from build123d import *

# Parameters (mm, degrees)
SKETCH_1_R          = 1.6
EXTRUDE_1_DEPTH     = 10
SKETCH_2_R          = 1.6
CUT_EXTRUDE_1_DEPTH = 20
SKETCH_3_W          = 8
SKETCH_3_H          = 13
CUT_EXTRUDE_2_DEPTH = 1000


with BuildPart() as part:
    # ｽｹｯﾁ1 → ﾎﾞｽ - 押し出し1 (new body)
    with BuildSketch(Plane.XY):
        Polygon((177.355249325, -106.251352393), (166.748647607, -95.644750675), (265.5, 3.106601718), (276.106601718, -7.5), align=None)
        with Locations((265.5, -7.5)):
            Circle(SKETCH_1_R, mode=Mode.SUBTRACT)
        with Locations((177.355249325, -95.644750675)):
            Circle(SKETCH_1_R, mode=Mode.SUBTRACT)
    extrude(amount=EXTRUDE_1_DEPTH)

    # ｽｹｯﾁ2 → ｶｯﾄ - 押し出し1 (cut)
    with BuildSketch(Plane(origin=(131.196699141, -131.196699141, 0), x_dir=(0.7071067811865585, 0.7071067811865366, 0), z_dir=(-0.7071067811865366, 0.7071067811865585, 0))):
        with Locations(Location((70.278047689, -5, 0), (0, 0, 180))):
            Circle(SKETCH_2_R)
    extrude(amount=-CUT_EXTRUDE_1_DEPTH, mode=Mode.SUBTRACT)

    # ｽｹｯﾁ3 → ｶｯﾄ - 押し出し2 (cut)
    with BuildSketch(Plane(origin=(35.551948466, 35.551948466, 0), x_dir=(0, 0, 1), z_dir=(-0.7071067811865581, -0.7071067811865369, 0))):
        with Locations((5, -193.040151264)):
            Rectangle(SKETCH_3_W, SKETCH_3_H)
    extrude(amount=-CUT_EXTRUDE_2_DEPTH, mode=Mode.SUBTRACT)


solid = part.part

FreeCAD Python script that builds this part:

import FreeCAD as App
import Part
import Sketcher
from FreeCAD import Vector
Q = App.Units.Quantity


def add_polygon(sketch, points):
    """Adds a closed chain of lines whose ends are joined by coincident constraints."""
    first, n = sketch.GeometryCount, len(points)
    for a, b in zip(points, points[1:] + points[:1]):
        sketch.addGeometry(Part.LineSegment(App.Vector(*a, 0), App.Vector(*b, 0)), False)
    for i in range(n):
        sketch.addConstraint(Sketcher.Constraint("Coincident", first + i, 2, first + (i + 1) % n, 1))

doc = App.newDocument("Part")
params = doc.addObject("Spreadsheet::Sheet", "Params")
for row, (alias, value) in enumerate([
    ("sketch1_diameter", "3.2 mm"),
    ("sketch1_length", "15 mm"),
    ("pad1_length", "10 mm"),
    ("sketch2_diameter", "3.2 mm"),
    ("pocket1_length", "20 mm"),
    ("sketch3_width", "8 mm"),
    ("sketch3_height", "13 mm"),
    ("pocket2_length", "1000 mm"),
], start=1):
    params.set(f"A{row}", alias)
    params.set(f"B{row}", "=" + value)
    params.setAlias(f"B{row}", alias)

body = doc.addObject("PartDesign::Body", "Body")

sketch1 = body.newObject("Sketcher::SketchObject", "Sketch")
sketch1.AttachmentSupport = (doc.getObject("XY_Plane"), [""])
sketch1.MapMode = "FlatFace"
add_polygon(sketch1, [(166.7, -95.6), (177.4, -106.3), (276.1, -7.5), (265.5, 3.1)])
sketch1.addGeometry(Part.Circle(Vector(177.4, -95.6, 0), Vector(0, 0, 1), 1.6), False)
sketch1.addGeometry(Part.Circle(Vector(265.5, -7.5, 0), Vector(0, 0, 1), 1.6), False)
sketch1.addConstraint([
    Sketcher.Constraint("Equal", 4, 5),
    Sketcher.Constraint("Perpendicular", 0, 1),
    Sketcher.Constraint("Perpendicular", 1, 2),
    Sketcher.Constraint("Perpendicular", 2, 3),
    Sketcher.Constraint("Horizontal", 5, 3, 1, 2),
    Sketcher.Constraint("Horizontal", 4, 3, 3, 2),
    Sketcher.Constraint("Vertical", 4, 3, 0, 2),
    Sketcher.Constraint("Vertical", 5, 3, 2, 2),
    Sketcher.Constraint("Diameter", 4, 3.2),
    Sketcher.Constraint("Angle", 0, Q("-45 deg")),
    Sketcher.Constraint("Distance", 0, 15.0),
    Sketcher.Constraint("DistanceX", -1, 1, 5, 3, 265.5),
    Sketcher.Constraint("DistanceY", 5, 3, -1, 1, 7.5),
    Sketcher.Constraint("Distance", 1, 139.655502),
])
sketch1.setExpression("Constraints[12]", "Params.sketch1_diameter")
sketch1.setExpression("Constraints[14]", "Params.sketch1_length")
pad1 = body.newObject("PartDesign::Pad", "Pad")
pad1.Profile = sketch1
pad1.setExpression("Length", "Params.pad1_length")

sketch2 = body.newObject("Sketcher::SketchObject", "Sketch001")
sketch2.Placement = App.Placement(Vector(131.196699, -131.196699, 0), App.Rotation(Vector(0.707106781, 0.707106781, 0), Vector(0, 0, -0.999999999), Vector(-0.707106781, 0.707106781, 0), "ZXY"))
sketch2.addGeometry(Part.Circle(Vector(70.3, -5, 0), Vector(0, 0, 1), 1.6), False)
sketch2.addConstraint([
    Sketcher.Constraint("Diameter", 0, 3.2),
    Sketcher.Constraint("DistanceY", 0, 3, -1, 1, 5.0),
    Sketcher.Constraint("DistanceX", -1, 1, 0, 3, 70.278048),
])
sketch2.setExpression("Constraints[0]", "Params.sketch2_diameter")
pocket1 = body.newObject("PartDesign::Pocket", "Pocket")
pocket1.Profile = sketch2
pocket1.setExpression("Length", "Params.pocket1_length")

sketch3 = body.newObject("Sketcher::SketchObject", "Sketch002")
sketch3.Placement = App.Placement(Vector(35.551948, 35.551948, 0), App.Rotation(Vector(0, 0, 1), Vector(-0.707106781, 0.707106781, 0), Vector(-0.707106781, -0.707106781, 0), "ZXY"))
add_polygon(sketch3, [(1, -187), (1, -200), (9, -200), (9, -187)])
sketch3.addConstraint([
    Sketcher.Constraint("Vertical", 0),
    Sketcher.Constraint("Horizontal", 1),
    Sketcher.Constraint("Vertical", 2),
    Sketcher.Constraint("Horizontal", 3),
    Sketcher.Constraint("DistanceX", 1, 1, 1, 2, 8.0),
    Sketcher.Constraint("DistanceY", 0, 2, 0, 1, 13.0),
    Sketcher.Constraint("DistanceX", -1, 1, 0, 2, 1.0),
    Sketcher.Constraint("DistanceY", 0, 2, -1, 1, 199.540151),
])
sketch3.setExpression("Constraints[8]", "Params.sketch3_width")
sketch3.setExpression("Constraints[9]", "Params.sketch3_height")
pocket2 = body.newObject("PartDesign::Pocket", "Pocket001")
pocket2.Profile = sketch3
pocket2.setExpression("Length", "Params.pocket2_length")

doc.recompute()
